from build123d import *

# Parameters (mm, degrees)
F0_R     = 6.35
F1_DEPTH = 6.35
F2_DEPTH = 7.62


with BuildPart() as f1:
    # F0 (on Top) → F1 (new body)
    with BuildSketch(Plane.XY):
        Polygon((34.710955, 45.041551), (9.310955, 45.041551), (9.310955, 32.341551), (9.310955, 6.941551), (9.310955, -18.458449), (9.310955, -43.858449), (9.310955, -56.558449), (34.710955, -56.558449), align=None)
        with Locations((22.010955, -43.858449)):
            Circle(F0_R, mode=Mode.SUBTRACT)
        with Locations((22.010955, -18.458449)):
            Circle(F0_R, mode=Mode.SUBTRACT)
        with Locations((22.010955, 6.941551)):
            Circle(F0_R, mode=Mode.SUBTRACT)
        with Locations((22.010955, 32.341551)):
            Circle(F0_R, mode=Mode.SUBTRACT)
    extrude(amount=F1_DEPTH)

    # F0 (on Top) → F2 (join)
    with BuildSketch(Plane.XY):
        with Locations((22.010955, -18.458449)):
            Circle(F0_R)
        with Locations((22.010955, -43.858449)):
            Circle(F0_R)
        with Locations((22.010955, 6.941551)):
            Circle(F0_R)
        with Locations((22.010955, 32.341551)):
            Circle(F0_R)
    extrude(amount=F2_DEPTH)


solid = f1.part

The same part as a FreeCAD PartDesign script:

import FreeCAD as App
import Part
import Sketcher
from FreeCAD import Vector
Q = App.Units.Quantity

doc = App.newDocument("Part")
body = doc.addObject("PartDesign::Body", "Body")

sketch1 = doc.addObject("Sketcher::SketchObject", "Sketch")
body.addObject(sketch1)
sketch1.AttachmentSupport = (doc.XY_Plane, [""])
sketch1.MapMode = "FlatFace"
sketch1.addGeometry(Part.LineSegment(Vector(35, 45, 0), Vector(9, 45, 0)), False)
sketch1.addGeometry(Part.LineSegment(Vector(9, 45, 0), Vector(9, -57, 0)), False)
sketch1.addGeometry(Part.LineSegment(Vector(9, -57, 0), Vector(35, -57, 0)), False)
sketch1.addGeometry(Part.LineSegment(Vector(35, -57, 0), Vector(35, 45, 0)), False)
sketch1.addGeometry(Part.Circle(Vector(22, -44, 0), Vector(0, 0, 1), 6), False)
sketch1.addGeometry(Part.Circle(Vector(22, -18, 0), Vector(0, 0, 1), 6), False)
sketch1.addGeometry(Part.Circle(Vector(22, 7, 0), Vector(0, 0, 1), 6), False)
sketch1.addGeometry(Part.Circle(Vector(22, 32, 0), Vector(0, 0, 1), 6), False)
sketch1.addConstraint(Sketcher.Constraint("Coincident", 0, 2, 1, 1))
sketch1.addConstraint(Sketcher.Constraint("Coincident", 1, 2, 2, 1))
sketch1.addConstraint(Sketcher.Constraint("Coincident", 2, 2, 3, 1))
sketch1.addConstraint(Sketcher.Constraint("Coincident", 3, 2, 0, 1))
sketch1.addConstraint(Sketcher.Constraint("Horizontal", 0))
sketch1.addConstraint(Sketcher.Constraint("Vertical", 1))
sketch1.addConstraint(Sketcher.Constraint("Horizontal", 2))
sketch1.addConstraint(Sketcher.Constraint("Vertical", 3))
sketch1.addConstraint(Sketcher.Constraint("Equal", 4, 5))
sketch1.addConstraint(Sketcher.Constraint("Equal", 5, 6))
sketch1.addConstraint(Sketcher.Constraint("Equal", 6, 7))
sketch1.addConstraint(Sketcher.Constraint("Vertical", 4, 3, 5, 3))
sketch1.addConstraint(Sketcher.Constraint("Vertical", 5, 3, 6, 3))
sketch1.addConstraint(Sketcher.Constraint("Vertical", 6, 3, 7, 3))
sketch1.addConstraint(Sketcher.Constraint("Diameter", 4, Q("0.5 in")))
sketch1.addConstraint(Sketcher.Constraint("DistanceX", 0, 2, 0, 1, Q("1 in")))
sketch1.addConstraint(Sketcher.Constraint("DistanceY", 1, 2, 1, 1, Q("4 in")))
sketch1.addConstraint(Sketcher.Constraint("DistanceY", 4, 3, 5, 3, Q("1 in")))
sketch1.addConstraint(Sketcher.Constraint("DistanceY", 5, 3, 6, 3, Q("1 in")))
sketch1.addConstraint(Sketcher.Constraint("DistanceY", 6, 3, 7, 3, Q("1 in")))
sketch1.addConstraint(Sketcher.Constraint("DistanceX", 0, 2, 7, 3, Q("0.5 in")))
sketch1.addConstraint(Sketcher.Constraint("DistanceY", 7, 3, 0, 2, Q("0.5 in")))
sketch1.addConstraint(Sketcher.Constraint("DistanceY", 4, 3, -1, 1, Q("43.858449 mm")))
sketch1.addConstraint(Sketcher.Constraint("DistanceX", -1, 1, 4, 3, Q("22.010955 mm")))
pad1 = doc.addObject("PartDesign::Pad", "Pad")
body.addObject(pad1)
pad1.Profile = sketch1
pad1.Length = Q("0.25 in")

sketch2 = doc.addObject("Sketcher::SketchObject", "Sketch001")
body.addObject(sketch2)
sketch2.AttachmentSupport = (doc.XY_Plane, [""])
sketch2.MapMode = "FlatFace"
sketch2.addGeometry(Part.Circle(Vector(22, -18, 0), Vector(0, 0, 1), 6), False)
sketch2.addGeometry(Part.Circle(Vector(22, -44, 0), Vector(0, 0, 1), 6), False)
sketch2.addGeometry(Part.Circle(Vector(22, 7, 0), Vector(0, 0, 1), 6), False)
sketch2.addGeometry(Part.Circle(Vector(22, 32, 0), Vector(0, 0, 1), 6), False)
sketch2.addConstraint(Sketcher.Constraint("Equal", 0, 1))
sketch2.addConstraint(Sketcher.Constraint("Equal", 1, 2))
sketch2.addConstraint(Sketcher.Constraint("Equal", 2, 3))
sketch2.addConstraint(Sketcher.Constraint("Vertical", 0, 3, 1, 3))
sketch2.addConstraint(Sketcher.Constraint("Vertical", 1, 3, 2, 3))
sketch2.addConstraint(Sketcher.Constraint("Vertical", 2, 3, 3, 3))
sketch2.addConstraint(Sketcher.Constraint("Diameter", 0, Q("0.5 in")))
sketch2.addConstraint(Sketcher.Constraint("DistanceY", 1, 3, 0, 3, Q("1 in")))
sketch2.addConstraint(Sketcher.Constraint("DistanceY", 0, 3, 2, 3, Q("1 in")))
sketch2.addConstraint(Sketcher.Constraint("DistanceY", 2, 3, 3, 3, Q("1 in")))
sketch2.addConstraint(Sketcher.Constraint("DistanceY", 0, 3, -1, 1, Q("18.458449 mm")))
sketch2.addConstraint(Sketcher.Constraint("DistanceX", -1, 1, 0, 3, Q("22.010955 mm")))
pad2 = doc.addObject("PartDesign::Pad", "Pad001")
body.addObject(pad2)
pad2.Profile = sketch2
pad2.Length = Q("0.3 in")

doc.recompute()
